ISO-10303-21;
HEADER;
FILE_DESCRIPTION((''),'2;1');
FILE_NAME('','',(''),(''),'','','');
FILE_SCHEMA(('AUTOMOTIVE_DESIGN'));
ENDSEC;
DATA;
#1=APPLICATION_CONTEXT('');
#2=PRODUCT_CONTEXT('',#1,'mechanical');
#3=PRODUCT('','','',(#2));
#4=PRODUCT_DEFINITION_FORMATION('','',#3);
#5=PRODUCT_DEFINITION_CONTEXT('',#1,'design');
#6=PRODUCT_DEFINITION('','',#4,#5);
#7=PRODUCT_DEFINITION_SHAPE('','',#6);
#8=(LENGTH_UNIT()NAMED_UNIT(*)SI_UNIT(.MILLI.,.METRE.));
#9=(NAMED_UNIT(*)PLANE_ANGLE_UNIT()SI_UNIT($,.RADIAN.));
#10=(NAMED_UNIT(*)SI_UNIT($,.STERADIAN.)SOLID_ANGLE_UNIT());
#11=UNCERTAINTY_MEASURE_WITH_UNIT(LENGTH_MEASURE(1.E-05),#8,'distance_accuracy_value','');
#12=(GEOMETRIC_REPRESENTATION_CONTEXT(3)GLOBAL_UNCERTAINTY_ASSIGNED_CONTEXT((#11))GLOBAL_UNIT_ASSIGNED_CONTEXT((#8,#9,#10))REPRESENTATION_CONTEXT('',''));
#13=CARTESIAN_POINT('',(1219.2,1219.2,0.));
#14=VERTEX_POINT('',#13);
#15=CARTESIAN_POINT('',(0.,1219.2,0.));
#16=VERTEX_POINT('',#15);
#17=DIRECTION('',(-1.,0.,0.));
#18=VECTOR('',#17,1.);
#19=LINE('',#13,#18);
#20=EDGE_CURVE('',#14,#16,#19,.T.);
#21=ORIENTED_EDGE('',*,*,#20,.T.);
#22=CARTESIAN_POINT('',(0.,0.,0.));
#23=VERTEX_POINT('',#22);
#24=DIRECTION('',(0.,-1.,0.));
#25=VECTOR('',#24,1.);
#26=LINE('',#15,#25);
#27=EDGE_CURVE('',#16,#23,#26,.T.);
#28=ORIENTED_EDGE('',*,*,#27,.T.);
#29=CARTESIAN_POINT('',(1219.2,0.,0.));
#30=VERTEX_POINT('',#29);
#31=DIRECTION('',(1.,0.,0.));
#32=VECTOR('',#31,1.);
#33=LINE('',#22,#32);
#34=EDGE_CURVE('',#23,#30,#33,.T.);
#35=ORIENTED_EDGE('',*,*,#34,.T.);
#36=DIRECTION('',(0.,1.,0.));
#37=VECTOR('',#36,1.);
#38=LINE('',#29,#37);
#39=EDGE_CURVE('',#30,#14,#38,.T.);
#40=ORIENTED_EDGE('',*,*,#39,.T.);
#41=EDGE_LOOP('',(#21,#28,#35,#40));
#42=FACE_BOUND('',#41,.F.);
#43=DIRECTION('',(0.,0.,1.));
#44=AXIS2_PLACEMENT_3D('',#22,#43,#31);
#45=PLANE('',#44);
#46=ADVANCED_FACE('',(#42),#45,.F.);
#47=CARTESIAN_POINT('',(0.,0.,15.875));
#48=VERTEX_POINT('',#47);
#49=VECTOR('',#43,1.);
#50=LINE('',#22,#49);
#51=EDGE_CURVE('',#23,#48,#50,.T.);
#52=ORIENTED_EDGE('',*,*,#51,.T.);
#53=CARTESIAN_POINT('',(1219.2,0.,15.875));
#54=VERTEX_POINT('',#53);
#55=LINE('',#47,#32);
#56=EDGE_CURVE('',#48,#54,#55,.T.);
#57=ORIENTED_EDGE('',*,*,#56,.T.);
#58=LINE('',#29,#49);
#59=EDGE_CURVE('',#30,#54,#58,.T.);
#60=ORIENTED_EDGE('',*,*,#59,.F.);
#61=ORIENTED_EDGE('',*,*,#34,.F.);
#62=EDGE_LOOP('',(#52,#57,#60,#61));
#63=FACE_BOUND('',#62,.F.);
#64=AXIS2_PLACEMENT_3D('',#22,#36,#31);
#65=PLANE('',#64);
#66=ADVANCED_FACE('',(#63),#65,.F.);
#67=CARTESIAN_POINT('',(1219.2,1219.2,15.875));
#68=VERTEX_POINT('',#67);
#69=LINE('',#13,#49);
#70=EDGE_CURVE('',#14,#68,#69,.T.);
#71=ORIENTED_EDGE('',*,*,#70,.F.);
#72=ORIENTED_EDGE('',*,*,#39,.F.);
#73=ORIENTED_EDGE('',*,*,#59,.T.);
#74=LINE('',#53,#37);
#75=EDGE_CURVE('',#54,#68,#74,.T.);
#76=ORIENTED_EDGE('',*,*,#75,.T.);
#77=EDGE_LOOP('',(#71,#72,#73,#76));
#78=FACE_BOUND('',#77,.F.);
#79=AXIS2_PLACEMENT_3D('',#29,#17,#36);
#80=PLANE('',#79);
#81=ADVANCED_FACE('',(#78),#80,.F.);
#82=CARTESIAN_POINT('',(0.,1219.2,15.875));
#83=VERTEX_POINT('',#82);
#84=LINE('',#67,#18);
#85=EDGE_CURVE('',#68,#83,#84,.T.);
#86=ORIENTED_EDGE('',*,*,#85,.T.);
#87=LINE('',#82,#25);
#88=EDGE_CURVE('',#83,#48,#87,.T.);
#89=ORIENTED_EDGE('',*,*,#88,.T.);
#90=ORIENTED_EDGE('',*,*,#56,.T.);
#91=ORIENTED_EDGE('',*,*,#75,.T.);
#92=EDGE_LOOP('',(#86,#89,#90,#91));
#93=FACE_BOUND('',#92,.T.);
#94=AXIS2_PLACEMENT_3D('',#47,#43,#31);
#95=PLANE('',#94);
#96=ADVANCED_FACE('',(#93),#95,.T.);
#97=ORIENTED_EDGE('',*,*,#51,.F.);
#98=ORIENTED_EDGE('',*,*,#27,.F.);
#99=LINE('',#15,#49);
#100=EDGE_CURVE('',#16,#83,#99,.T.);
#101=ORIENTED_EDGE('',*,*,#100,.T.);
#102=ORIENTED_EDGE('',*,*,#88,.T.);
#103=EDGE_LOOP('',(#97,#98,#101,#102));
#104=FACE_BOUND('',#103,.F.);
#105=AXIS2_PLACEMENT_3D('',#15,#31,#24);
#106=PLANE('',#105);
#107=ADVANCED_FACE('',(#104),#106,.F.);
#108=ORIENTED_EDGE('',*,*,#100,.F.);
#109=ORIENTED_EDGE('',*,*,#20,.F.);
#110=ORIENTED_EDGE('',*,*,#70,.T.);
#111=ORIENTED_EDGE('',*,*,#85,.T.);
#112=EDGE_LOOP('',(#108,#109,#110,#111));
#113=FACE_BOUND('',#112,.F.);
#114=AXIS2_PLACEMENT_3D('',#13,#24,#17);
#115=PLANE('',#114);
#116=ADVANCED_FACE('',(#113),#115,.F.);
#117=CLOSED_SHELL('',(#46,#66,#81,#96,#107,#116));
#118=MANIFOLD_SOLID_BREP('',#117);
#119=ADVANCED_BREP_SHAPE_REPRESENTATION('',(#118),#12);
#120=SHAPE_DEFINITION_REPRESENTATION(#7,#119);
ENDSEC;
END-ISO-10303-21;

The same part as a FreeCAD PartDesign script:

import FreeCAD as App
import Part
import Sketcher

V = App.Vector
Q = App.Units.Quantity

doc = App.newDocument("Part")
body = doc.addObject("PartDesign::Body", "Body")

# Sketch on XY plane
sketch1 = doc.addObject("Sketcher::SketchObject", "Sketch")
body.addObject(sketch1)
sketch1.AttachmentSupport = (doc.XY_Plane, [""])
sketch1.MapMode = "FlatFace"
sketch1.addGeometry(Part.LineSegment(V(0, 1219, 0), V(0, 0, 0)), False)
sketch1.addGeometry(Part.LineSegment(V(0, 0, 0), V(1219, 0, 0)), False)
sketch1.addGeometry(Part.LineSegment(V(1219, 0, 0), V(1219, 1219, 0)), False)
sketch1.addGeometry(Part.LineSegment(V(1219, 1219, 0), V(0, 1219, 0)), False)
sketch1.addConstraint(Sketcher.Constraint("Coincident", 0, 2, 1, 1))
sketch1.addConstraint(Sketcher.Constraint("Coincident", 1, 2, 2, 1))
sketch1.addConstraint(Sketcher.Constraint("Coincident", 2, 2, 3, 1))
sketch1.addConstraint(Sketcher.Constraint("Coincident", 3, 2, 0, 1))
sketch1.addConstraint(Sketcher.Constraint("Vertical", 0))
sketch1.addConstraint(Sketcher.Constraint("Horizontal", 1))
sketch1.addConstraint(Sketcher.Constraint("Vertical", 2))
sketch1.addConstraint(Sketcher.Constraint("Horizontal", 3))
sketch1.addConstraint(Sketcher.Constraint("Coincident", 0, 2, -1, 1))
sketch1.addConstraint(Sketcher.Constraint("Equal", 3, 0))
sketch1.addConstraint(Sketcher.Constraint("DistanceX", 1, 1, 1, 2, Q("48 in")))
pad1 = doc.addObject("PartDesign::Pad", "Pad")
body.addObject(pad1)
pad1.Profile = sketch1
pad1.Length = Q("0.625 in")

doc.recompute()
